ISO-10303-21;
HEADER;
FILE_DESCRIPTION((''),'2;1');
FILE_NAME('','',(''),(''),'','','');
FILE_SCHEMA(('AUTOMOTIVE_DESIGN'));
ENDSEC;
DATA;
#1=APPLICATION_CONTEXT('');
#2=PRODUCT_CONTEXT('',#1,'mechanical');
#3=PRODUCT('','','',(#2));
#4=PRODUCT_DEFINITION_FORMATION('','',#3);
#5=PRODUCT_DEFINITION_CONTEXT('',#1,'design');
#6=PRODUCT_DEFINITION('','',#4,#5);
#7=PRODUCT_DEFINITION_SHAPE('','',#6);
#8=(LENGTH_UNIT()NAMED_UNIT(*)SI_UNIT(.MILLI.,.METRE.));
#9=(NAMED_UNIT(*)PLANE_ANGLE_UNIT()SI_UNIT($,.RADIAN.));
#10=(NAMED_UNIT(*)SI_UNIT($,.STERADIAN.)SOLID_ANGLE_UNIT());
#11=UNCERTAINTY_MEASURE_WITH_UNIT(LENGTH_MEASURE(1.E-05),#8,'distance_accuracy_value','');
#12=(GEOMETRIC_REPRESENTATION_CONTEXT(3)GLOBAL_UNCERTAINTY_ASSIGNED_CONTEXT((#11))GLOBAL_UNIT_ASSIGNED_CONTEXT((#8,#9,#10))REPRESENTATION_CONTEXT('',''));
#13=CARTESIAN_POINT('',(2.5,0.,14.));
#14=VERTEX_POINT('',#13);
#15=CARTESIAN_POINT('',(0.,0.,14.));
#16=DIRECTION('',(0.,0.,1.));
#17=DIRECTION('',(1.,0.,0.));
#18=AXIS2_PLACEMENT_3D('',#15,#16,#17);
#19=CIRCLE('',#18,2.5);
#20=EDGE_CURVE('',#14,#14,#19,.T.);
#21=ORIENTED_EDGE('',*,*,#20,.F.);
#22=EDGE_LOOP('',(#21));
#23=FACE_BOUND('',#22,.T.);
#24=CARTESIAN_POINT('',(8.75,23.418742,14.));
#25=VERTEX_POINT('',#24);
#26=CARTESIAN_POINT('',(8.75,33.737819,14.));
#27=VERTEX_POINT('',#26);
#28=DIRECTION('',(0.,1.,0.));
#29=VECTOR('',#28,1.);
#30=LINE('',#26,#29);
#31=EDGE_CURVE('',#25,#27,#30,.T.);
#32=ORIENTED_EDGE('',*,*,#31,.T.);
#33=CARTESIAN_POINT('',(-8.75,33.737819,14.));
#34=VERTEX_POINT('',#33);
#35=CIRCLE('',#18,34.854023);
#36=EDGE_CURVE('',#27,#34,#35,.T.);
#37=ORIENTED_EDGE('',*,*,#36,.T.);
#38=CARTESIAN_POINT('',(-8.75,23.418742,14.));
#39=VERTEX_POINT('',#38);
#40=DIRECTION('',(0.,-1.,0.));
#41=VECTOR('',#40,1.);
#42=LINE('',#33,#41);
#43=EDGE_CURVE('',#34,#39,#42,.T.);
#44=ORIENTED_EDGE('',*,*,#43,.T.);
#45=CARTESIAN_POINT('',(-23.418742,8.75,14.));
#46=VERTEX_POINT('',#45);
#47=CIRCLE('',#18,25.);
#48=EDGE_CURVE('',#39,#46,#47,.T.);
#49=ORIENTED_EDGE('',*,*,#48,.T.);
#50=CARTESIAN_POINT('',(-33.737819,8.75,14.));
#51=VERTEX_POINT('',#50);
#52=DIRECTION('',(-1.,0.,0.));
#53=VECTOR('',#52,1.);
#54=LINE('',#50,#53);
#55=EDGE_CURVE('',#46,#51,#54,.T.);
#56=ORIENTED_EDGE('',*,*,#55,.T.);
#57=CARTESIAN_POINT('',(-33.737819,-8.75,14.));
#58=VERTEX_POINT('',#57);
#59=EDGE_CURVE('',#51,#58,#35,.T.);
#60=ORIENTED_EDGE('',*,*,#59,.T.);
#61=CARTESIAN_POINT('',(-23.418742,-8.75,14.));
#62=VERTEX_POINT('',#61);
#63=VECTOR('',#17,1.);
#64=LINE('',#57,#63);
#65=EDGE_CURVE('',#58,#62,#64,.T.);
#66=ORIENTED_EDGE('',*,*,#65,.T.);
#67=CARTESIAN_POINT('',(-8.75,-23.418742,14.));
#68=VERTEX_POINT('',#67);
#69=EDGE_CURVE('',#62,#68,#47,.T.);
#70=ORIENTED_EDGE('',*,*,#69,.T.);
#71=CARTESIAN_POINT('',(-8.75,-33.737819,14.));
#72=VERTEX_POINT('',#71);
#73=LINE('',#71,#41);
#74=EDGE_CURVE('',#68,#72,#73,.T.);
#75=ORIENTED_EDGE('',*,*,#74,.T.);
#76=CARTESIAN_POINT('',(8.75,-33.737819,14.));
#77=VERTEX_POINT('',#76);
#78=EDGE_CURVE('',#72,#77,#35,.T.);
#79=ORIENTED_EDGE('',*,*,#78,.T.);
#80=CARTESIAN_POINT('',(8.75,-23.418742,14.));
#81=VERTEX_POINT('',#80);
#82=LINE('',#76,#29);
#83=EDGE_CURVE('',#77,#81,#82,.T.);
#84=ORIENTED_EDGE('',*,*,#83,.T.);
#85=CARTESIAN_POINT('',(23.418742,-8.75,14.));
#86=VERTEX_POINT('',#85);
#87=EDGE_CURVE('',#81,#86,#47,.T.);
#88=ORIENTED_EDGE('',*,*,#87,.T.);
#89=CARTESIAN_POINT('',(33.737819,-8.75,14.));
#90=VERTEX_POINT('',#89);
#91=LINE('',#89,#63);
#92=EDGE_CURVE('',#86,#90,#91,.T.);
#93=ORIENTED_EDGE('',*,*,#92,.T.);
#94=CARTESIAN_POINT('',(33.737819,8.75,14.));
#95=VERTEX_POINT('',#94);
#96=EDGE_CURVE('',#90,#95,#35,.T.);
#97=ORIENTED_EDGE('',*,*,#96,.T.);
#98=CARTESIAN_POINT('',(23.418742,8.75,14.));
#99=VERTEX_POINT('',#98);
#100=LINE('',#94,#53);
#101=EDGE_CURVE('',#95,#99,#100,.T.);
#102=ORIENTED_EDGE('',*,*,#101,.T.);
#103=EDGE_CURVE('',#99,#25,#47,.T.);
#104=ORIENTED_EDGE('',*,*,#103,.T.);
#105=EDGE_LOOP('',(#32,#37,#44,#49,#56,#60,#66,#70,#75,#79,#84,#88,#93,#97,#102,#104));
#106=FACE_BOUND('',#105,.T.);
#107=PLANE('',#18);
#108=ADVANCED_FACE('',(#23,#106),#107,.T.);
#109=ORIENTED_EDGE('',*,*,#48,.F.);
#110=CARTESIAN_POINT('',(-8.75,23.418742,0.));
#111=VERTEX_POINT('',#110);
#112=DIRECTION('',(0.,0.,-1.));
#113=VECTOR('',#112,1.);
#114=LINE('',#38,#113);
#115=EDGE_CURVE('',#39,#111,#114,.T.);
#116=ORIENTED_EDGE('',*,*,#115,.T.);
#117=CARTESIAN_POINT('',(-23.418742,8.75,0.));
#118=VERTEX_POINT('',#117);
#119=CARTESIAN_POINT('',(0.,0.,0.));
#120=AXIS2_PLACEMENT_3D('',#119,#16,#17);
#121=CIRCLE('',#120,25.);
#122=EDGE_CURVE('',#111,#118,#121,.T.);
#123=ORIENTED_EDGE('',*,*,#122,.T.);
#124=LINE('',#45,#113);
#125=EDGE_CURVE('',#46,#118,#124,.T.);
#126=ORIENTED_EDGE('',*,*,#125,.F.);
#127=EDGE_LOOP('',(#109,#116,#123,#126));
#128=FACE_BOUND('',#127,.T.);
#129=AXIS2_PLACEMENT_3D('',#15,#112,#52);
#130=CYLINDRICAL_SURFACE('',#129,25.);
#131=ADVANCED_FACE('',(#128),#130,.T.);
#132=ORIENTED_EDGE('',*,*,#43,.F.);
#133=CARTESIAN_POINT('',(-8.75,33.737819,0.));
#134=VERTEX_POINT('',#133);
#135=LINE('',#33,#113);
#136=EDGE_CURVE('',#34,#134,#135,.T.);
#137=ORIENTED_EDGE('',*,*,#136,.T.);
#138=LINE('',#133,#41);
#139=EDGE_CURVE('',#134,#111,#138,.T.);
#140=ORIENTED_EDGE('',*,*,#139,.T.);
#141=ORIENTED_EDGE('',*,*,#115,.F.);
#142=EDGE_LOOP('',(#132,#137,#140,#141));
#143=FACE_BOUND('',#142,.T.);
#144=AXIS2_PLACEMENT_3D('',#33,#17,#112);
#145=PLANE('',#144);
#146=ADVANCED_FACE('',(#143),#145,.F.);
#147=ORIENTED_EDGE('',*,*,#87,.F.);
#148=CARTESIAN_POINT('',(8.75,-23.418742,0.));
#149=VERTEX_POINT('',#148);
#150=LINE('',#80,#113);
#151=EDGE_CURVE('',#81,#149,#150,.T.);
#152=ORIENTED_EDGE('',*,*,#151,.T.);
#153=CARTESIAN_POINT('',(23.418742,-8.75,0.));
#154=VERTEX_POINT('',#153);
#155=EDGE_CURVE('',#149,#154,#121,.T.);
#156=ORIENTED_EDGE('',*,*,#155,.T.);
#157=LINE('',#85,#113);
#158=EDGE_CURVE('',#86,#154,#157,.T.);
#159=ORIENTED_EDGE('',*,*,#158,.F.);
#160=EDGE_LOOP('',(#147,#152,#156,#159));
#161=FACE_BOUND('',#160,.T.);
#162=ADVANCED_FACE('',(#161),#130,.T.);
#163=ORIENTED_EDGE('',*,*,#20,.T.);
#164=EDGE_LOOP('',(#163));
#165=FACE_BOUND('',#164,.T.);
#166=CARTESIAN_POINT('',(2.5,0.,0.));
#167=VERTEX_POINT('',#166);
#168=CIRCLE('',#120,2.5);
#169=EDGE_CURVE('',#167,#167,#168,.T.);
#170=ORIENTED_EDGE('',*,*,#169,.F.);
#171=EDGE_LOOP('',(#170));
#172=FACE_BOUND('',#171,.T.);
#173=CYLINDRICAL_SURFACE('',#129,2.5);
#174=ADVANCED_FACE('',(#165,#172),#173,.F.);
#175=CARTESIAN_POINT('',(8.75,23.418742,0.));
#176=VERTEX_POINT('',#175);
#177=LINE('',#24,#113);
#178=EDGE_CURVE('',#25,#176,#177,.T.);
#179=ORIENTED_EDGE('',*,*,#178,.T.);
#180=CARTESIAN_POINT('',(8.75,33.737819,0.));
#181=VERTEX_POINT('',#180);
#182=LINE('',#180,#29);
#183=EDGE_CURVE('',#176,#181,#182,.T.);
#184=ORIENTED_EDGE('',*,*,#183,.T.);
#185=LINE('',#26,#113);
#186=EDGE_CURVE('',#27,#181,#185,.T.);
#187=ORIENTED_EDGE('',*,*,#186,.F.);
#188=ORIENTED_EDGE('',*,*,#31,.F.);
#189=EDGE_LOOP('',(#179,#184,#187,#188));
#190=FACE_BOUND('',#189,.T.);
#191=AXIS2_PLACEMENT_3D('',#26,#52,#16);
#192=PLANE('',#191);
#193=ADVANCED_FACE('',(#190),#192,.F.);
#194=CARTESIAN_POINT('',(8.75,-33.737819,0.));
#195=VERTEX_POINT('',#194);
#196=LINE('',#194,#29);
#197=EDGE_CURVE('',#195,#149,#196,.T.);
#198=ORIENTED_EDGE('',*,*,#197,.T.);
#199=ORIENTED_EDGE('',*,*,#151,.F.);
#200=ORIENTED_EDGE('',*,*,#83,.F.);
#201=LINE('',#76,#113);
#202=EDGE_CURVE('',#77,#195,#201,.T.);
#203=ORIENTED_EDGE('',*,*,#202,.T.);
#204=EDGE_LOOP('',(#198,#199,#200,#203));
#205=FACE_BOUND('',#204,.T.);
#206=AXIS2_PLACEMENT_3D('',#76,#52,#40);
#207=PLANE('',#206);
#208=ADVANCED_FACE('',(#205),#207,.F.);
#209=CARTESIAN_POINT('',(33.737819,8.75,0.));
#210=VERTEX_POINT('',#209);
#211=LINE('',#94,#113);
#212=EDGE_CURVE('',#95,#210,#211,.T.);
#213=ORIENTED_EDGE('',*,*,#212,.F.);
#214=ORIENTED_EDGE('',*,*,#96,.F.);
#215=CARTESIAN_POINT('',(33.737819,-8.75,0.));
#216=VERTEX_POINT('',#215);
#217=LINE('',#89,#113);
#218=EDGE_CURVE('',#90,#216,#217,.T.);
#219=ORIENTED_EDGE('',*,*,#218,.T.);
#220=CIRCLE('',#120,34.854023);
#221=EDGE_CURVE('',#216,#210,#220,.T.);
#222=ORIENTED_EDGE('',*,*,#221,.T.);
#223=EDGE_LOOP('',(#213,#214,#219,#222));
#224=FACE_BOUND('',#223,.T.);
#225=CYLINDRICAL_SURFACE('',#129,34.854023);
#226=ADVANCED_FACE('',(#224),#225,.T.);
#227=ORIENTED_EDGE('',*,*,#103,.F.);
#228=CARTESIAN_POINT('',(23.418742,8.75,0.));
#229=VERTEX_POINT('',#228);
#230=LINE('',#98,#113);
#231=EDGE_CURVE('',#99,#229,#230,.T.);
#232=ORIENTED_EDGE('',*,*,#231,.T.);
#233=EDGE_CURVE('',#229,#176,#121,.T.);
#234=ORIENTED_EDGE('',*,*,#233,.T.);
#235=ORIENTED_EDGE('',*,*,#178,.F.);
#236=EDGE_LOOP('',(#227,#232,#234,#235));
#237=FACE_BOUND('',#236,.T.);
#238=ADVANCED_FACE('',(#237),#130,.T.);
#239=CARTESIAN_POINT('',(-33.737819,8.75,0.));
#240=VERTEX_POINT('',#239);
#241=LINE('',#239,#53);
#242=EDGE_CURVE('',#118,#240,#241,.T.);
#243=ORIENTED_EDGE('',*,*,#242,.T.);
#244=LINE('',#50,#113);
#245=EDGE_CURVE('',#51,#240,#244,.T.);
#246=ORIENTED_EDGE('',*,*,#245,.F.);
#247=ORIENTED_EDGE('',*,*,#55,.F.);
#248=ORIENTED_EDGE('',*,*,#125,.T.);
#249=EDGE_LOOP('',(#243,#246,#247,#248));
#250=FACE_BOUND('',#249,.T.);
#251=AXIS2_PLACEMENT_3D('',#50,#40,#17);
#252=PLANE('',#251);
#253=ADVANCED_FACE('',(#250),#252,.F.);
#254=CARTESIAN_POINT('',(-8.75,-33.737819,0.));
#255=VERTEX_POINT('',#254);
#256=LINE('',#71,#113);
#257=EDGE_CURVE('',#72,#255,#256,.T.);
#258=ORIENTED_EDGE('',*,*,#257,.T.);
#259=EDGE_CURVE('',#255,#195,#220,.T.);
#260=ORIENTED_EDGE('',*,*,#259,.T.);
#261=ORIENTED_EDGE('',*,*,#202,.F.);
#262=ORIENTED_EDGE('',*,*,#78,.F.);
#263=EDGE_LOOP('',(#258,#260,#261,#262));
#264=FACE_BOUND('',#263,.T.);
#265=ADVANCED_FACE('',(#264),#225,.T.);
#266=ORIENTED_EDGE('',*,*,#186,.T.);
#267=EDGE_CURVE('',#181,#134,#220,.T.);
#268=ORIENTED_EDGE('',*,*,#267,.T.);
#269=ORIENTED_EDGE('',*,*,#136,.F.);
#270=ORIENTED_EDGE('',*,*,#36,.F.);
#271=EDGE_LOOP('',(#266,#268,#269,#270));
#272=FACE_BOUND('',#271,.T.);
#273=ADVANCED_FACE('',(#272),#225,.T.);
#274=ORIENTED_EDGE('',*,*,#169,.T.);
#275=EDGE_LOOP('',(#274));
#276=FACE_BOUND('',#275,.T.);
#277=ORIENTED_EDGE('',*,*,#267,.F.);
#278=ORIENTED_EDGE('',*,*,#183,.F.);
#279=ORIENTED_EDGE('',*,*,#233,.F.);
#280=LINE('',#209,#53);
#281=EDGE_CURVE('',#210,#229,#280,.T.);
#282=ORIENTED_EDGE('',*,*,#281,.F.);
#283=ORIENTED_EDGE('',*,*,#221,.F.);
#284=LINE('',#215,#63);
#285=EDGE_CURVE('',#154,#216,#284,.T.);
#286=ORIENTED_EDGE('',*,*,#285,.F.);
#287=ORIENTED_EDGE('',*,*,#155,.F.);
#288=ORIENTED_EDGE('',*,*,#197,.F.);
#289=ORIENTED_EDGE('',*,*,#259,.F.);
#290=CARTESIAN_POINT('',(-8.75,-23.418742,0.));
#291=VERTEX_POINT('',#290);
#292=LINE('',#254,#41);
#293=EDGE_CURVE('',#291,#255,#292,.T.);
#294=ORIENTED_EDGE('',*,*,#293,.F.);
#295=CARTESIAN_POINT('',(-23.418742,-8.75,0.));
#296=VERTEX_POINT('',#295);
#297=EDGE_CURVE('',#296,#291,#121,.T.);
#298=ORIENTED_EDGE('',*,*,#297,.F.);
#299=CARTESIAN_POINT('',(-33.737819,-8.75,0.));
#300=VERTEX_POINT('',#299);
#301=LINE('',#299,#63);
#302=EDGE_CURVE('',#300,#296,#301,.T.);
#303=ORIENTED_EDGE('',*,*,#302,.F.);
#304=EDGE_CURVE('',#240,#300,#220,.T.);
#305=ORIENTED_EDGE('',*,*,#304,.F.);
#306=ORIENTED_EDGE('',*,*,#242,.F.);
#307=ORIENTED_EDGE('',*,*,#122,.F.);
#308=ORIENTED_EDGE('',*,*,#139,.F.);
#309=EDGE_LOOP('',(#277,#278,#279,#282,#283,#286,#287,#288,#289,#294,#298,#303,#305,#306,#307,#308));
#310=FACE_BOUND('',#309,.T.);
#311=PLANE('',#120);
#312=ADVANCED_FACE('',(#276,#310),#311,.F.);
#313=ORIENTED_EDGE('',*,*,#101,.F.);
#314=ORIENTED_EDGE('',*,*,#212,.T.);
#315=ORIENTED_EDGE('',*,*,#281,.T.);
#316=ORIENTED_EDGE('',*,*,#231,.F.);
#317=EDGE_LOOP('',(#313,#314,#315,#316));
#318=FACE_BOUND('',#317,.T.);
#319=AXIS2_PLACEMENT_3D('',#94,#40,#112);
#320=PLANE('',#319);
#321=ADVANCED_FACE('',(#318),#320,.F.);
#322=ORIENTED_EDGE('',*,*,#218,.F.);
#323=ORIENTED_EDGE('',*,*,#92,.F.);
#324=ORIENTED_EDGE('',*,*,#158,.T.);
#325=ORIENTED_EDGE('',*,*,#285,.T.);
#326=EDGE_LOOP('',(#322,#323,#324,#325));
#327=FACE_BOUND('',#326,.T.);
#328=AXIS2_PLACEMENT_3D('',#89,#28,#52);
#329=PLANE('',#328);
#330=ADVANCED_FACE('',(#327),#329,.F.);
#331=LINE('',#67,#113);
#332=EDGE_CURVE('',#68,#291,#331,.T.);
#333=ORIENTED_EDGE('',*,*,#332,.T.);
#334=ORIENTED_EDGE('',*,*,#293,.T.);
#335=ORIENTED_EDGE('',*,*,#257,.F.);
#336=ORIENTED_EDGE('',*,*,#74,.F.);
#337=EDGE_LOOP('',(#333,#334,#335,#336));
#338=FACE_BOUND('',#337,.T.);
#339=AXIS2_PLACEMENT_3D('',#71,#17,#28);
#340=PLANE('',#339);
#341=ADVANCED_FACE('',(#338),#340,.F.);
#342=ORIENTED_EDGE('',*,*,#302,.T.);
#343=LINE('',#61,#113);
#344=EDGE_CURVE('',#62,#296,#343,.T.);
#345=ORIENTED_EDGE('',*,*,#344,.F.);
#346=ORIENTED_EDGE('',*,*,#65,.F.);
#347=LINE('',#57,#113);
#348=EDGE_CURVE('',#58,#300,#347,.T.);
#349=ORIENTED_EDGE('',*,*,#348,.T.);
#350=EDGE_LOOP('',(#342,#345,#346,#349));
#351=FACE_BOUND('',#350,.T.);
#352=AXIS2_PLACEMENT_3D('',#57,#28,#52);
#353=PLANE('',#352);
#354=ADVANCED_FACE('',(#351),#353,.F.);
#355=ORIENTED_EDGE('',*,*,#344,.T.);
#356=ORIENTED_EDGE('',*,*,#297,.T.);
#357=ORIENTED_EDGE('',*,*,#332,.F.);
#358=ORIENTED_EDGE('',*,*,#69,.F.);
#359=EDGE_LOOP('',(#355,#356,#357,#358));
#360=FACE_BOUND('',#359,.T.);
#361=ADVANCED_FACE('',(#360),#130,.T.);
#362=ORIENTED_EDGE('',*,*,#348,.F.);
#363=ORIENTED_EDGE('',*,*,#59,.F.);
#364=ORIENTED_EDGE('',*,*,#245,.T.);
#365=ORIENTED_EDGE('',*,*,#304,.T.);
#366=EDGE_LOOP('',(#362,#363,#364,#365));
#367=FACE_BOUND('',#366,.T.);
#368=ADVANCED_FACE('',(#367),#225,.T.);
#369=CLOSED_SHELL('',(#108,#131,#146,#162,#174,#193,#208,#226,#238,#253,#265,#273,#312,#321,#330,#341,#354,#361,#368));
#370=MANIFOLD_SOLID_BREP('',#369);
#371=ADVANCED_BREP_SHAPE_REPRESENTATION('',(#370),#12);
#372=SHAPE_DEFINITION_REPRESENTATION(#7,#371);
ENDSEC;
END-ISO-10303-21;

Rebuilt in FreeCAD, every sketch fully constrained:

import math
import FreeCAD as App
import Part
import Sketcher

doc = App.newDocument("Part")
body = doc.addObject("PartDesign::Body", "Body")

# Sketch on XY plane
sketch1 = body.newObject("Sketcher::SketchObject", "Sketch")
sketch1.AttachmentSupport = (doc.getObject("XY_Plane"), [""])
sketch1.MapMode = "FlatFace"
sketch1.addGeometry([
    Part.LineSegment(App.Vector(-8.8, 33.7, 0), App.Vector(-8.8, 23.4, 0)),  # 0
    Part.ArcOfCircle(Part.Circle(App.Vector(0, 0, 0), App.Vector(0, 0, 1), 25), math.radians(110), math.radians(160)),  # 1
    Part.LineSegment(App.Vector(-23.4, 8.8, 0), App.Vector(-33.7, 8.8, 0)),  # 2
    Part.ArcOfCircle(Part.Circle(App.Vector(0, 0, 0), App.Vector(0, 0, 1), 34.9), math.radians(165), math.radians(195)),  # 3
    Part.LineSegment(App.Vector(-33.7, -8.8, 0), App.Vector(-23.4, -8.8, 0)),  # 4
    Part.ArcOfCircle(Part.Circle(App.Vector(0, 0, 0), App.Vector(0, 0, 1), 25), math.radians(-160), math.radians(-110)),  # 5
    Part.LineSegment(App.Vector(-8.8, -23.4, 0), App.Vector(-8.8, -33.7, 0)),  # 6
    Part.ArcOfCircle(Part.Circle(App.Vector(0, 0, 0), App.Vector(0, 0, 1), 34.9), math.radians(-105), math.radians(-75)),  # 7
    Part.LineSegment(App.Vector(8.8, -33.7, 0), App.Vector(8.8, -23.4, 0)),  # 8
    Part.ArcOfCircle(Part.Circle(App.Vector(0, 0, 0), App.Vector(0, 0, 1), 25), math.radians(-70), math.radians(-20)),  # 9
    Part.LineSegment(App.Vector(23.4, -8.8, 0), App.Vector(33.7, -8.8, 0)),  # 10
    Part.ArcOfCircle(Part.Circle(App.Vector(0, 0, 0), App.Vector(0, 0, 1), 34.9), math.radians(-15), math.radians(15)),  # 11
    Part.LineSegment(App.Vector(33.7, 8.8, 0), App.Vector(23.4, 8.8, 0)),  # 12
    Part.ArcOfCircle(Part.Circle(App.Vector(0, 0, 0), App.Vector(0, 0, 1), 25), math.radians(20), math.radians(70)),  # 13
    Part.LineSegment(App.Vector(8.8, 23.4, 0), App.Vector(8.8, 33.7, 0)),  # 14
    Part.ArcOfCircle(Part.Circle(App.Vector(0, 0, 0), App.Vector(0, 0, 1), 34.9), math.radians(75), math.radians(105)),  # 15
    Part.Circle(App.Vector(0, 0, 0), App.Vector(0, 0, 1), 2.5),  # 16
], False)
sketch1.addConstraint([
    Sketcher.Constraint("Coincident", 0, 2, 1, 1),
    Sketcher.Constraint("Coincident", 1, 2, 2, 1),
    Sketcher.Constraint("Coincident", 2, 2, 3, 1),
    Sketcher.Constraint("Coincident", 3, 2, 4, 1),
    Sketcher.Constraint("Coincident", 4, 2, 5, 1),
    Sketcher.Constraint("Coincident", 5, 2, 6, 1),
    Sketcher.Constraint("Coincident", 6, 2, 7, 1),
    Sketcher.Constraint("Coincident", 7, 2, 8, 1),
    Sketcher.Constraint("Coincident", 8, 2, 9, 1),
    Sketcher.Constraint("Coincident", 9, 2, 10, 1),
    Sketcher.Constraint("Coincident", 10, 2, 11, 1),
    Sketcher.Constraint("Coincident", 11, 2, 12, 1),
    Sketcher.Constraint("Coincident", 12, 2, 13, 1),
    Sketcher.Constraint("Coincident", 13, 2, 14, 1),
    Sketcher.Constraint("Coincident", 14, 2, 15, 1),
    Sketcher.Constraint("Coincident", 15, 2, 0, 1),
    Sketcher.Constraint("Vertical", 0),
    Sketcher.Constraint("Horizontal", 2),
    Sketcher.Constraint("Horizontal", 4),
    Sketcher.Constraint("Vertical", 6),
    Sketcher.Constraint("Vertical", 8),
    Sketcher.Constraint("Horizontal", 10),
    Sketcher.Constraint("Horizontal", 12),
    Sketcher.Constraint("Vertical", 14),
    Sketcher.Constraint("Coincident", 1, 3, -1, 1),
    Sketcher.Constraint("Coincident", 3, 3, -1, 1),
    Sketcher.Constraint("Coincident", 5, 3, -1, 1),
    Sketcher.Constraint("Coincident", 7, 3, -1, 1),
    Sketcher.Constraint("Coincident", 9, 3, -1, 1),
    Sketcher.Constraint("Coincident", 11, 3, -1, 1),
    Sketcher.Constraint("Coincident", 13, 3, -1, 1),
    Sketcher.Constraint("Coincident", 15, 3, -1, 1),
    Sketcher.Constraint("Coincident", 16, 3, -1, 1),
    Sketcher.Constraint("Equal", 1, 5),
    Sketcher.Constraint("Equal", 3, 7),
    Sketcher.Constraint("Equal", 5, 9),
    Sketcher.Constraint("Equal", 7, 11),
    Sketcher.Constraint("Equal", 9, 13),
    Sketcher.Constraint("Equal", 11, 15),
    Sketcher.Constraint("Horizontal", 6, 2, 7, 2),
    Sketcher.Constraint("Horizontal", 4, 2, 9, 2),
    Sketcher.Constraint("Horizontal", 2, 2, 11, 2),
    Sketcher.Constraint("Horizontal", 0, 2, 13, 2),
    Sketcher.Constraint("Vertical", 2, 2, 3, 2),
    Sketcher.Constraint("Vertical", 0, 2, 5, 2),
    Sketcher.Constraint("Equal", 12, 0),
    Sketcher.Constraint("Diameter", 16, 5.0),
    Sketcher.Constraint("Radius", 1, 25.0),
    Sketcher.Constraint("DistanceY", 3, 2, 2, 2, 17.5),
    Sketcher.Constraint("Radius", 3, 34.854023),
])
pad1 = body.newObject("PartDesign::Pad", "Pad")
pad1.Profile = sketch1
pad1.Length = 14

doc.recompute()
